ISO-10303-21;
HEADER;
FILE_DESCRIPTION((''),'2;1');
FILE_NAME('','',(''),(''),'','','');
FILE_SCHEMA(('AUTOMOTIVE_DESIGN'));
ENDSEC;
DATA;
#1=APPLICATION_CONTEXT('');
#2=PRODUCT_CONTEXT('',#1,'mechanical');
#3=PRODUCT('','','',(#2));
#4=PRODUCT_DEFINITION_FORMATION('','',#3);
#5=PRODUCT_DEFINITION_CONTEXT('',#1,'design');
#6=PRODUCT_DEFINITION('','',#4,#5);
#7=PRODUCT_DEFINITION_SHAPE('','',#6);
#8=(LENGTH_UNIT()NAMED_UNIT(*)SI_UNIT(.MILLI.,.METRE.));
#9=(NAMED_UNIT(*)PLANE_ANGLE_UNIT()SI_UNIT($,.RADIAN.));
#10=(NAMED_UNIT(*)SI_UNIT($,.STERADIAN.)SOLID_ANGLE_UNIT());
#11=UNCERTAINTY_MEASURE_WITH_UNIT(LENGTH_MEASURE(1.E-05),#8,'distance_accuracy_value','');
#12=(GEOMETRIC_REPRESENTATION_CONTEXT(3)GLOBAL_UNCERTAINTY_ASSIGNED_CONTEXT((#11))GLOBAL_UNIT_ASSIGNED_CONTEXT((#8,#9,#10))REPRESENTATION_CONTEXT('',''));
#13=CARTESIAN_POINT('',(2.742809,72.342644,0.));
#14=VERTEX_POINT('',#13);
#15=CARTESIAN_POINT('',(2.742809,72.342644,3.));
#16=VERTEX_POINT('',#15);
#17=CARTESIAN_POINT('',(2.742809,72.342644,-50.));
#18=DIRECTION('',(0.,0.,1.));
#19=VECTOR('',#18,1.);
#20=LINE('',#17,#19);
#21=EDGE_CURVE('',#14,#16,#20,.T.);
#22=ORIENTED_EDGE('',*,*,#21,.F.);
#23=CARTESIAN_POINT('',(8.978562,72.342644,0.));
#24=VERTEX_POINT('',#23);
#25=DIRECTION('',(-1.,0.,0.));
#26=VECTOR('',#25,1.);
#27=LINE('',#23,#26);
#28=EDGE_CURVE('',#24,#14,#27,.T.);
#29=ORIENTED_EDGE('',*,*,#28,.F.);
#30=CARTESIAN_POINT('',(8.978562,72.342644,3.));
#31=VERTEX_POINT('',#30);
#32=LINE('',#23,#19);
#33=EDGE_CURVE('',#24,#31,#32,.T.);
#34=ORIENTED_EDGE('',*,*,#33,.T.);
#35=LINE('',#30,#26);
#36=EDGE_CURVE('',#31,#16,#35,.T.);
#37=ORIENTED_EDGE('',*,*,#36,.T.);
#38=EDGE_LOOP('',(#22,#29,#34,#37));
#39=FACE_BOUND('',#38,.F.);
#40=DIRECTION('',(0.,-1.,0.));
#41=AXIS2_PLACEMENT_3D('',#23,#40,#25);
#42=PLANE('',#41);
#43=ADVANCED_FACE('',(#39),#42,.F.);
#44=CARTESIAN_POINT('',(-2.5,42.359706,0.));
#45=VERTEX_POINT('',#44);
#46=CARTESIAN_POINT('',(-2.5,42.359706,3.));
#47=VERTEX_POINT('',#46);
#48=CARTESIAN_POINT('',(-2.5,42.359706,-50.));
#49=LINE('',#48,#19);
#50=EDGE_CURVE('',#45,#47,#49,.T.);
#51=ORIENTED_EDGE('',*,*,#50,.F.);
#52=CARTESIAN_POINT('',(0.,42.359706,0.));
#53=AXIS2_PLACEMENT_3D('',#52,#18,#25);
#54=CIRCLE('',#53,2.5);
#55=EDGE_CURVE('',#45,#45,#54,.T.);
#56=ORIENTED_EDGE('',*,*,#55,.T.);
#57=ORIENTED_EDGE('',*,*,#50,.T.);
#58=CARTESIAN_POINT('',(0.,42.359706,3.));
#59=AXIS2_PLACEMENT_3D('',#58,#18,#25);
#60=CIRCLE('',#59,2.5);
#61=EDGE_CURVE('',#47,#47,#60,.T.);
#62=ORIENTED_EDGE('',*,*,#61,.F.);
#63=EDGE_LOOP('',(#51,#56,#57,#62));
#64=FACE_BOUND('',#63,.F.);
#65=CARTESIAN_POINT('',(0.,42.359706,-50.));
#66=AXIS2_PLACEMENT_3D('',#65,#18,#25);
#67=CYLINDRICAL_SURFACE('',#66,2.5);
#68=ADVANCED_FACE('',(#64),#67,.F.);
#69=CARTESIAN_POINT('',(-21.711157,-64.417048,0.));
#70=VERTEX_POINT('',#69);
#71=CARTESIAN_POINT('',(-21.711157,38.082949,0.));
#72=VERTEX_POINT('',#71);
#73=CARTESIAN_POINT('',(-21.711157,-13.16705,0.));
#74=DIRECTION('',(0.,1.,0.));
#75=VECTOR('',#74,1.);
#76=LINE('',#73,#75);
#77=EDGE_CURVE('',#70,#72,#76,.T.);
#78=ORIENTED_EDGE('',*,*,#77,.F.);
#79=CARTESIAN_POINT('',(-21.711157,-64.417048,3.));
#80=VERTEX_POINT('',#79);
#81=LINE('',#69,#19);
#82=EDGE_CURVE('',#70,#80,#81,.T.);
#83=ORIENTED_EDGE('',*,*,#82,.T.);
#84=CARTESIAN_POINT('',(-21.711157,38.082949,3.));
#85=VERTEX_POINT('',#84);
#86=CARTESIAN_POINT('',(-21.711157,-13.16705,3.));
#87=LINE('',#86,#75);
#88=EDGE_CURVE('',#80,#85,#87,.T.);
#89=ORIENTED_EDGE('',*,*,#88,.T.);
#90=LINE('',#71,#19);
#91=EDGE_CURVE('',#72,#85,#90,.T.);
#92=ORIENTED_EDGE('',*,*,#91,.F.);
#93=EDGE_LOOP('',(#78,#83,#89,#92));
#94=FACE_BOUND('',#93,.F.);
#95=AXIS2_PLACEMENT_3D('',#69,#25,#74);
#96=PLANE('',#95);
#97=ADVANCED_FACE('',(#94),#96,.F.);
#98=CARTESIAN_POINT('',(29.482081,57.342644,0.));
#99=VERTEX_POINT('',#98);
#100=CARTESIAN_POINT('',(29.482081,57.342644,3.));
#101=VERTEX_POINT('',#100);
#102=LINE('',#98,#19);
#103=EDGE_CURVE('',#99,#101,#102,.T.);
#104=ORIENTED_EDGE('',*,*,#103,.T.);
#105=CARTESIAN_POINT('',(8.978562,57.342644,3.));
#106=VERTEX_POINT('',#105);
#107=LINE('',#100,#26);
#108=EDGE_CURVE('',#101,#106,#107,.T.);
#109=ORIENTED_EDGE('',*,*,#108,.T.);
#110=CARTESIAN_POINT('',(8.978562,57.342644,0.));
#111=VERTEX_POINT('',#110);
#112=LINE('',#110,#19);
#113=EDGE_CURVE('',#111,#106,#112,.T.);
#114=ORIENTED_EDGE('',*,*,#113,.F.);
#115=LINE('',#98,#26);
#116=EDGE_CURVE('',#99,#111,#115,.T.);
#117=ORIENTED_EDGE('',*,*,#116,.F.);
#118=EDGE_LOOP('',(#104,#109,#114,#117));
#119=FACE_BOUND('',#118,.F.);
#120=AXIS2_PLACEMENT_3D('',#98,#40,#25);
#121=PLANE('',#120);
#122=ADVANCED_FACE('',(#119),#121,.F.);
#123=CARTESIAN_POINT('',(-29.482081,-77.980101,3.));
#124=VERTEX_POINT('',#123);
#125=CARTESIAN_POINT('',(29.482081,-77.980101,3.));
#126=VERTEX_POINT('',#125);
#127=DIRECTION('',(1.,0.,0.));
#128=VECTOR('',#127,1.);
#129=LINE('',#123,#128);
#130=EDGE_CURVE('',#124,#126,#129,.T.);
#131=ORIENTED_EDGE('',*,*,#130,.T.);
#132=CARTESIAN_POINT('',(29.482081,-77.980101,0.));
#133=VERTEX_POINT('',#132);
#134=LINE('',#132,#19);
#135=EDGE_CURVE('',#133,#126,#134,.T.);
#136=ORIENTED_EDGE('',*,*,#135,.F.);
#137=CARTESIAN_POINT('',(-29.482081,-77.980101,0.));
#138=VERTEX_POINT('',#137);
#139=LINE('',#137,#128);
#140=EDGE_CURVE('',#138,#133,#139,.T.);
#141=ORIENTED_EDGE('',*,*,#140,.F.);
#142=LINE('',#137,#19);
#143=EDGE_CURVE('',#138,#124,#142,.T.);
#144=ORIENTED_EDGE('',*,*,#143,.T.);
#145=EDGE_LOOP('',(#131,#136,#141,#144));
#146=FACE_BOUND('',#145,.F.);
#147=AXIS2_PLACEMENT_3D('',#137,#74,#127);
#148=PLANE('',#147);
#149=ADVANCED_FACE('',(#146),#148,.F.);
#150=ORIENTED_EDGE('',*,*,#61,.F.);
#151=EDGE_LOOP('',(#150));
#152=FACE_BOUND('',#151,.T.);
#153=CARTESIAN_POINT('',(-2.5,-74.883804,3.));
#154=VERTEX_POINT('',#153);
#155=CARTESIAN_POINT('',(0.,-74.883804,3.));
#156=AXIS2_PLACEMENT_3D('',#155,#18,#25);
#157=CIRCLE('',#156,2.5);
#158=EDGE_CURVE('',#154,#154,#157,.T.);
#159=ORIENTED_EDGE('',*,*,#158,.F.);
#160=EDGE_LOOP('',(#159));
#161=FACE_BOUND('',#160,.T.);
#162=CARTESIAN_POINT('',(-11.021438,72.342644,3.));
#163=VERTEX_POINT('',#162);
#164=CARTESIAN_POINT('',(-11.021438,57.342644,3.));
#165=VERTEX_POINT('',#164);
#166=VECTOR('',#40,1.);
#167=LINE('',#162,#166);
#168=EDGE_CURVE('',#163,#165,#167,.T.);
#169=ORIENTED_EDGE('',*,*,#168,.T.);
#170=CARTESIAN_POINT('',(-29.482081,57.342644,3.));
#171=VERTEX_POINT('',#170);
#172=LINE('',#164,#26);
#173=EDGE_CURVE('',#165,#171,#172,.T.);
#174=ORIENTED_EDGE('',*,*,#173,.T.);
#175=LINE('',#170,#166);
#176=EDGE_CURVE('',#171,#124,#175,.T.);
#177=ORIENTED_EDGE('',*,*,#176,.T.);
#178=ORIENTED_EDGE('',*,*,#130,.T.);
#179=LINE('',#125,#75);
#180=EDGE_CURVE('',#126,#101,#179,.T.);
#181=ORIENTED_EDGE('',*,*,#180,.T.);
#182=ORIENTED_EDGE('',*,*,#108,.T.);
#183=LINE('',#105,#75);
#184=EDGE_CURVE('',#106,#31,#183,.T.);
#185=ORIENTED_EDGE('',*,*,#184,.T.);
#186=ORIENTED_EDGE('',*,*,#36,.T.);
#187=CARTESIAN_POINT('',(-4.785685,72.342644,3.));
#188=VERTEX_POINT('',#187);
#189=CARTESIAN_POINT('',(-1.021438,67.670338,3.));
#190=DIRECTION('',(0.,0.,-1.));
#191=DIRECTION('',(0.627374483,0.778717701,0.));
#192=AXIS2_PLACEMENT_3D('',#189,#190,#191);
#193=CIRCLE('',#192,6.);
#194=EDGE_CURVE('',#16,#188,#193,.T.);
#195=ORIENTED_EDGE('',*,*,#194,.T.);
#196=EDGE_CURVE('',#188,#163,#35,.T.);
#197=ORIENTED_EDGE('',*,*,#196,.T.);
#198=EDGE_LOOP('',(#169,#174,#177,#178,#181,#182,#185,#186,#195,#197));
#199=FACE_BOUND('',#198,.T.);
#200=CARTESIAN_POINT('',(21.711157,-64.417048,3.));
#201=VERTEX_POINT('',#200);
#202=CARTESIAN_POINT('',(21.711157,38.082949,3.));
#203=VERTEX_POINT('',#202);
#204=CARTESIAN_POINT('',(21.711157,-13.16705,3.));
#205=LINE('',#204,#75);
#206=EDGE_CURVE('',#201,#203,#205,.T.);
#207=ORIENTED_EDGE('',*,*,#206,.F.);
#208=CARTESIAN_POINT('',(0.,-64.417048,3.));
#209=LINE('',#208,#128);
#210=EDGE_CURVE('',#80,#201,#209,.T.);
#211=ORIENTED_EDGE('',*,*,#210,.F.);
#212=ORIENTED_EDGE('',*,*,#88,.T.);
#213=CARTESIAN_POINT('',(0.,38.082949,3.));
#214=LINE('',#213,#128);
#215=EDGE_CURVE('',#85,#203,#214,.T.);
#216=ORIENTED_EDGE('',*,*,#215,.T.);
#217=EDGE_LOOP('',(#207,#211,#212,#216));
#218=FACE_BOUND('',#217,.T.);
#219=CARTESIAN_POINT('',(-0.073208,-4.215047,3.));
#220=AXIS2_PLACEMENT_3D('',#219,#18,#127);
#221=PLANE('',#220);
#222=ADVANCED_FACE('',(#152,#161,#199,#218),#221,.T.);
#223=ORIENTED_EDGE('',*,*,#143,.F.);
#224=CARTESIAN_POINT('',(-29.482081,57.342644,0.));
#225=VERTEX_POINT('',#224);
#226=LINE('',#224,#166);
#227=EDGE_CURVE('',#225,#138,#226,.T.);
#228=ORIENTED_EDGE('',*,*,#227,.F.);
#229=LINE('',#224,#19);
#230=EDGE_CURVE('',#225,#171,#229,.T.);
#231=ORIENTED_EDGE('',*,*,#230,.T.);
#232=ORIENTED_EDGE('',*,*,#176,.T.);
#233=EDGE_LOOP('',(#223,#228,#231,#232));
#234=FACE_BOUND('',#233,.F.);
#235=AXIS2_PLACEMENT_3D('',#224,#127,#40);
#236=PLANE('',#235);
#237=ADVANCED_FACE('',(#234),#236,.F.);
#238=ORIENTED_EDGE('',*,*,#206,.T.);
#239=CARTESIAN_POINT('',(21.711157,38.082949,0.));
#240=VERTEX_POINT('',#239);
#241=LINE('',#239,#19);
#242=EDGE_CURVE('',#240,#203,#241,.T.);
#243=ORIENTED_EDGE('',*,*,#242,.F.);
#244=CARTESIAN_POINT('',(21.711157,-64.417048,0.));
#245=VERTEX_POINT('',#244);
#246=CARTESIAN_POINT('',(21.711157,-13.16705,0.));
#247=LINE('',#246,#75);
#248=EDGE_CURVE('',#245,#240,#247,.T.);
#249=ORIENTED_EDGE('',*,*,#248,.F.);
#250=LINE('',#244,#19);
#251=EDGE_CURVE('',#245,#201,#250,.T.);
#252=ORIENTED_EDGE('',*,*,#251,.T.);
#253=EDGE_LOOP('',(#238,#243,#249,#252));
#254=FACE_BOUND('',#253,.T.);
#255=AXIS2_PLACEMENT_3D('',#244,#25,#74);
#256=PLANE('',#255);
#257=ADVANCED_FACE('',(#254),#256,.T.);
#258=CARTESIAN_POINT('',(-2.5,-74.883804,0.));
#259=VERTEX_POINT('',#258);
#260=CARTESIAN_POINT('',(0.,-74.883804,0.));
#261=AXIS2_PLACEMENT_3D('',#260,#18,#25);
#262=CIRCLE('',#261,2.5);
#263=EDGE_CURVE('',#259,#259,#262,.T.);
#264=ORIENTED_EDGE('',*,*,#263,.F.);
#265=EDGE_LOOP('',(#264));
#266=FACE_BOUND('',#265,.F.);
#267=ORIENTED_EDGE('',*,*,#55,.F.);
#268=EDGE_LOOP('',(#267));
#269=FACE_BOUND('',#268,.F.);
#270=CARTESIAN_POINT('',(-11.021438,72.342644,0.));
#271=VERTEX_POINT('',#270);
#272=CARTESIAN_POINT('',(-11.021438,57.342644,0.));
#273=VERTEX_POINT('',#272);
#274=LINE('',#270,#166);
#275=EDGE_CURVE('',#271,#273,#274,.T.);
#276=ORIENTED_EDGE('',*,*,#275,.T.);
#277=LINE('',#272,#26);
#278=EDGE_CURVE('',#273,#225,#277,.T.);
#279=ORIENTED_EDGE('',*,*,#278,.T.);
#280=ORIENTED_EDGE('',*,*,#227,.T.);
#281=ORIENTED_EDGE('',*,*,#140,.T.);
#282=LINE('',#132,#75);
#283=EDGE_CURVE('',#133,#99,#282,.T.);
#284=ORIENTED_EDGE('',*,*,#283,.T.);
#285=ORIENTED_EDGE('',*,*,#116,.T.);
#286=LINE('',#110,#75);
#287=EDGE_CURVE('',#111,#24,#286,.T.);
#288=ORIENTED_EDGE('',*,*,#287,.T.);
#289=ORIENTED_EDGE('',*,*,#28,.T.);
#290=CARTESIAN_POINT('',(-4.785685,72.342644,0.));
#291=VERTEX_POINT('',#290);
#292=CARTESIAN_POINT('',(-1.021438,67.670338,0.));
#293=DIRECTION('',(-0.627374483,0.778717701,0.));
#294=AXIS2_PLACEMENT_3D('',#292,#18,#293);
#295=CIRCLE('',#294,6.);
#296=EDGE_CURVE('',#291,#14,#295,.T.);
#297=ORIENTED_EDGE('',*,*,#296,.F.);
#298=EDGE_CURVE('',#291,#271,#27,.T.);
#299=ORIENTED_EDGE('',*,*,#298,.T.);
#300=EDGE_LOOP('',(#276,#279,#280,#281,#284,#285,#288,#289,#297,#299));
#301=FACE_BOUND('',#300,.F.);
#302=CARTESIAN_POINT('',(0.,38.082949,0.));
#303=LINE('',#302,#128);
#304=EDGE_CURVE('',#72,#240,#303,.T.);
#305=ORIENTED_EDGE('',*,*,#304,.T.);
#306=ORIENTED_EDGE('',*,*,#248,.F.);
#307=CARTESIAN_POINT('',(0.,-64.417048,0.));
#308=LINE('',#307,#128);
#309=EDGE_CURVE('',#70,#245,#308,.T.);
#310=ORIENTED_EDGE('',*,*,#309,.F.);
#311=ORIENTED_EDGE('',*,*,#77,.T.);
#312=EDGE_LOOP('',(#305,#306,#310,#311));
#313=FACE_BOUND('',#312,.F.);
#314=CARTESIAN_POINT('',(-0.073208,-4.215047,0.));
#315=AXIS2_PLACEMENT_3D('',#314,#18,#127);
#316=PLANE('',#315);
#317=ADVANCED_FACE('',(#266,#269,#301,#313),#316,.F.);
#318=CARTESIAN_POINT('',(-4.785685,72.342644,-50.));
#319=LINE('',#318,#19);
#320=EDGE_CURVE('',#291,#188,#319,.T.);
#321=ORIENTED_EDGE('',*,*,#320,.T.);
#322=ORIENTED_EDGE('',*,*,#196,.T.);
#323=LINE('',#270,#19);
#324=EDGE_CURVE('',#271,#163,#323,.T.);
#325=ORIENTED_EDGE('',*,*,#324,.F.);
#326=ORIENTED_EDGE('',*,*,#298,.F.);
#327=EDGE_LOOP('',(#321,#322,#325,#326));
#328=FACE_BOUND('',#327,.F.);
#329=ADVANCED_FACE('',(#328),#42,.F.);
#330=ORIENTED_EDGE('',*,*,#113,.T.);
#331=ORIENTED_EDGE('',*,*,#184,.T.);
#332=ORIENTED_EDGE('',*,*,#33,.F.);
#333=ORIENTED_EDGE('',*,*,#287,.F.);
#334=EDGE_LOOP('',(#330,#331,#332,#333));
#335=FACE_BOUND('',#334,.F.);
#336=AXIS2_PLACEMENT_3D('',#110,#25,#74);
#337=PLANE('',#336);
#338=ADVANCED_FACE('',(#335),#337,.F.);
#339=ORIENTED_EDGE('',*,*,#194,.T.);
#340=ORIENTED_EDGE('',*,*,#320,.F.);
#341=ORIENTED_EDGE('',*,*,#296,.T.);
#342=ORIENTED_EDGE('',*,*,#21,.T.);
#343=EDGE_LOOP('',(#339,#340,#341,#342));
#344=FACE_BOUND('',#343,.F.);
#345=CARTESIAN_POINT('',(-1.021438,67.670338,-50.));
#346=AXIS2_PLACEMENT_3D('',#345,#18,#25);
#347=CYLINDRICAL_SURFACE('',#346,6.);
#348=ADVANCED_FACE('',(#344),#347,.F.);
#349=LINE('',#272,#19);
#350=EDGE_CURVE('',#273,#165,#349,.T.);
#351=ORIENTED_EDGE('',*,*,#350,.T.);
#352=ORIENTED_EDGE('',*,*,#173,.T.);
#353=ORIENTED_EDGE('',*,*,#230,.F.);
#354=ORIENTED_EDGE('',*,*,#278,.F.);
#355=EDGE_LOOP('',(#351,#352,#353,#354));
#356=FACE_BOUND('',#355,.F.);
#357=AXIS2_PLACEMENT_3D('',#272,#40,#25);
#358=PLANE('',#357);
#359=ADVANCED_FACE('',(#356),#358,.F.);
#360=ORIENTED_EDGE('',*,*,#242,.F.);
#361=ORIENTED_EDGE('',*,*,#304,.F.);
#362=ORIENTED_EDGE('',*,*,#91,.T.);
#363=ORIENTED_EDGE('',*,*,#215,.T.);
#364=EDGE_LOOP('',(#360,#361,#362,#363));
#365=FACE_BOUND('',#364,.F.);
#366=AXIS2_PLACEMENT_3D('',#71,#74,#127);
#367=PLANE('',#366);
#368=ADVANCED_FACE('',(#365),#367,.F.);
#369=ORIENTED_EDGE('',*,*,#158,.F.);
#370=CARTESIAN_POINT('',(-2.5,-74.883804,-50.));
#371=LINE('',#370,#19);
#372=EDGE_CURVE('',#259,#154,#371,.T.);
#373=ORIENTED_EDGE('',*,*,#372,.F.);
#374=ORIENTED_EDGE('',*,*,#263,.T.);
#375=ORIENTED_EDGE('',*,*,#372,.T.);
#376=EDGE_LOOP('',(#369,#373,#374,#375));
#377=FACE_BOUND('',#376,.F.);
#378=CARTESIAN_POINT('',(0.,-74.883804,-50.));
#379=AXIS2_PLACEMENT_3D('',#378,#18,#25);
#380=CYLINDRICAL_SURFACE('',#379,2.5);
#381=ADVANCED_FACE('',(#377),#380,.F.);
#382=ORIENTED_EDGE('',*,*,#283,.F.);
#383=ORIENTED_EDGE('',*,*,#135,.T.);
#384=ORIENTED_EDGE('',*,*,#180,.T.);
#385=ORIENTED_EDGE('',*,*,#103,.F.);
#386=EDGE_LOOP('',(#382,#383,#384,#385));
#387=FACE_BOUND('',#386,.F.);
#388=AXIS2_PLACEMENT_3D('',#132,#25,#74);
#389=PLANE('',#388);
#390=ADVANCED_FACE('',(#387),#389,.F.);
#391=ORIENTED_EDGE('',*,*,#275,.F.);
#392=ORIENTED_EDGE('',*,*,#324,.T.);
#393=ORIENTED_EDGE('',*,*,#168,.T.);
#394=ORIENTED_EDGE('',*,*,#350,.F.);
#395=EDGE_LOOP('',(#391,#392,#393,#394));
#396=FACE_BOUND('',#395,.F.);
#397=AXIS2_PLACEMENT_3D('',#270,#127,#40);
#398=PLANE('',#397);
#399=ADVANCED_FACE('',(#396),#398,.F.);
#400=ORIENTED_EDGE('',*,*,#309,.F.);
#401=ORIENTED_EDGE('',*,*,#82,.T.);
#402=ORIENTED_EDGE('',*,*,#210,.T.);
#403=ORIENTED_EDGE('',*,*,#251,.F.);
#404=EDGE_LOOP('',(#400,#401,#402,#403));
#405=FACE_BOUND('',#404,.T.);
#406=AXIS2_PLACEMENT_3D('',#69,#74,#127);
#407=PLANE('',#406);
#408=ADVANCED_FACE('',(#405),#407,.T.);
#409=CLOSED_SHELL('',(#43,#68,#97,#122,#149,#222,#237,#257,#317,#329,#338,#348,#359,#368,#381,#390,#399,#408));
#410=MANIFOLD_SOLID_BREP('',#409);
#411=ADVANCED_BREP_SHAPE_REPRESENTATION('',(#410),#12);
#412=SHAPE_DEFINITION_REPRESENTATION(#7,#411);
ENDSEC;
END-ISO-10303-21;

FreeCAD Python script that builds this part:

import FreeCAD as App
import Part
import Sketcher
from FreeCAD import Vector

doc = App.newDocument("Part")
body = doc.addObject("PartDesign::Body", "Body")

# Sketch on XY plane
sketch1 = body.newObject("Sketcher::SketchObject", "Sketch")
sketch1.AttachmentSupport = (doc.getObject("XY_Plane"), [""])
sketch1.MapMode = "FlatFace"
sketch1.addGeometry(Part.LineSegment(Vector(-29.482081, 57.342644, 0), Vector(-29.482081, -77.980101, 0)), False)
sketch1.addGeometry(Part.LineSegment(Vector(-29.482081, -77.980101, 0), Vector(29.482081, -77.980101, 0)), False)
sketch1.addGeometry(Part.LineSegment(Vector(29.482081, -77.980101, 0), Vector(29.482081, 57.342644, 0)), False)
sketch1.addGeometry(Part.LineSegment(Vector(29.482081, 57.342644, 0), Vector(8.978562, 57.342644, 0)), False)
sketch1.addGeometry(Part.LineSegment(Vector(8.978562, 57.342644, 0), Vector(8.978562, 72.342644, 0)), False)
sketch1.addGeometry(Part.LineSegment(Vector(8.978562, 72.342644, 0), Vector(-11.021438, 72.342644, 0)), False)
sketch1.addGeometry(Part.LineSegment(Vector(-11.021438, 72.342644, 0), Vector(-11.021438, 57.342644, 0)), False)
sketch1.addGeometry(Part.LineSegment(Vector(-11.021438, 57.342644, 0), Vector(-29.482081, 57.342644, 0)), False)
sketch1.addGeometry(Part.LineSegment(Vector(21.711157, -64.417048, 0), Vector(-21.711157, -64.417048, 0)), False)
sketch1.addGeometry(Part.LineSegment(Vector(-21.711157, -64.417048, 0), Vector(-21.711157, 38.082949, 0)), False)
sketch1.addGeometry(Part.LineSegment(Vector(-21.711157, 38.082949, 0), Vector(21.711157, 38.082949, 0)), False)
sketch1.addGeometry(Part.LineSegment(Vector(21.711157, 38.082949, 0), Vector(21.711157, -64.417048, 0)), False)
sketch1.addConstraint(Sketcher.Constraint("Coincident", 0, 2, 1, 1))
sketch1.addConstraint(Sketcher.Constraint("Coincident", 1, 2, 2, 1))
sketch1.addConstraint(Sketcher.Constraint("Coincident", 2, 2, 3, 1))
sketch1.addConstraint(Sketcher.Constraint("Coincident", 3, 2, 4, 1))
sketch1.addConstraint(Sketcher.Constraint("Coincident", 4, 2, 5, 1))
sketch1.addConstraint(Sketcher.Constraint("Coincident", 5, 2, 6, 1))
sketch1.addConstraint(Sketcher.Constraint("Coincident", 6, 2, 7, 1))
sketch1.addConstraint(Sketcher.Constraint("Coincident", 7, 2, 0, 1))
sketch1.addConstraint(Sketcher.Constraint("Coincident", 8, 2, 9, 1))
sketch1.addConstraint(Sketcher.Constraint("Coincident", 9, 2, 10, 1))
sketch1.addConstraint(Sketcher.Constraint("Coincident", 10, 2, 11, 1))
sketch1.addConstraint(Sketcher.Constraint("Coincident", 11, 2, 8, 1))
sketch1.addConstraint(Sketcher.Constraint("Vertical", 0))
sketch1.addConstraint(Sketcher.Constraint("Horizontal", 1))
sketch1.addConstraint(Sketcher.Constraint("Vertical", 2))
sketch1.addConstraint(Sketcher.Constraint("Horizontal", 3))
sketch1.addConstraint(Sketcher.Constraint("Vertical", 4))
sketch1.addConstraint(Sketcher.Constraint("Horizontal", 5))
sketch1.addConstraint(Sketcher.Constraint("Vertical", 6))
sketch1.addConstraint(Sketcher.Constraint("Horizontal", 7))
sketch1.addConstraint(Sketcher.Constraint("Horizontal", 8))
sketch1.addConstraint(Sketcher.Constraint("Vertical", 9))
sketch1.addConstraint(Sketcher.Constraint("Horizontal", 10))
sketch1.addConstraint(Sketcher.Constraint("Vertical", 11))
sketch1.addConstraint(Sketcher.Constraint("Symmetric", 2, 2, 7, 2, -2))
sketch1.addConstraint(Sketcher.Constraint("DistanceX", 5, 2, 5, 1, 20.0))
sketch1.addConstraint(Sketcher.Constraint("DistanceY", 4, 1, 4, 2, 15.0))
sketch1.addConstraint(Sketcher.Constraint("DistanceX", 3, 2, 3, 1, 20.50352))
sketch1.addConstraint(Sketcher.Constraint("DistanceY", 0, 2, -1, 1, 77.980101))
sketch1.addConstraint(Sketcher.Constraint("DistanceX", 1, 1, 1, 2, 58.964163))
sketch1.addConstraint(Sketcher.Constraint("DistanceX", 8, 2, 8, 1, 43.422314))
sketch1.addConstraint(Sketcher.Constraint("DistanceY", 0, 2, 0, 1, 135.322745))
sketch1.addConstraint(Sketcher.Constraint("DistanceY", 9, 1, 9, 2, 102.499997))
sketch1.addConstraint(Sketcher.Constraint("DistanceY", 8, 2, -1, 1, 64.417048))
sketch1.addConstraint(Sketcher.Constraint("DistanceX", 8, 2, 1, 2, 51.193238))
pad1 = body.newObject("PartDesign::Pad", "Pad")
pad1.Profile = sketch1
pad1.Length = 3

# Sketch on XY plane
sketch2 = body.newObject("Sketcher::SketchObject", "Sketch001")
sketch2.AttachmentSupport = (doc.getObject("XY_Plane"), [""])
sketch2.MapMode = "FlatFace"
sketch2.addGeometry(Part.Circle(Vector(-1.021438, 67.670338, 0), Vector(0, 0, 1), 6), False)
sketch2.addConstraint(Sketcher.Constraint("Diameter", 0, 12.0))
sketch2.addConstraint(Sketcher.Constraint("DistanceX", 0, 3, -1, 1, 1.021438))
sketch2.addConstraint(Sketcher.Constraint("DistanceY", -1, 1, 0, 3, 67.670338))
doc.recompute()
hole = body.newObject("PartDesign::Hole", "Hole")
hole.Profile = sketch2
hole.ThreadType = "None"
hole.Diameter = 12
hole.DepthType = "Dimension"
hole.Depth = 50
hole.DrillPoint = "Angled"
hole.DrillPointAngle = 118
hole.Reversed = True

# Sketch on XY plane
sketch3 = body.newObject("Sketcher::SketchObject", "Sketch002")
sketch3.AttachmentSupport = (doc.getObject("XY_Plane"), [""])
sketch3.MapMode = "FlatFace"
sketch3.addGeometry(Part.Circle(Vector(0, 42.359706, 0), Vector(0, 0, 1), 2.5), False)
sketch3.addGeometry(Part.Circle(Vector(0, -74.883804, 0), Vector(0, 0, 1), 2.5), False)
sketch3.addConstraint(Sketcher.Constraint("Equal", 0, 1))
sketch3.addConstraint(Sketcher.Constraint("PointOnObject", 0, 3, -2))
sketch3.addConstraint(Sketcher.Constraint("PointOnObject", 1, 3, -2))
sketch3.addConstraint(Sketcher.Constraint("Diameter", 0, 5.0))
sketch3.addConstraint(Sketcher.Constraint("DistanceY", 1, 3, 0, 3, 117.24351))
sketch3.addConstraint(Sketcher.Constraint("DistanceY", -1, 1, 0, 3, 42.359706))
doc.recompute()
hole2 = body.newObject("PartDesign::Hole", "Hole001")
hole2.Profile = sketch3
hole2.ThreadType = "None"
hole2.Diameter = 5
hole2.DepthType = "Dimension"
hole2.Depth = 50
hole2.DrillPoint = "Angled"
hole2.DrillPointAngle = 118
hole2.Reversed = True

doc.recompute()
